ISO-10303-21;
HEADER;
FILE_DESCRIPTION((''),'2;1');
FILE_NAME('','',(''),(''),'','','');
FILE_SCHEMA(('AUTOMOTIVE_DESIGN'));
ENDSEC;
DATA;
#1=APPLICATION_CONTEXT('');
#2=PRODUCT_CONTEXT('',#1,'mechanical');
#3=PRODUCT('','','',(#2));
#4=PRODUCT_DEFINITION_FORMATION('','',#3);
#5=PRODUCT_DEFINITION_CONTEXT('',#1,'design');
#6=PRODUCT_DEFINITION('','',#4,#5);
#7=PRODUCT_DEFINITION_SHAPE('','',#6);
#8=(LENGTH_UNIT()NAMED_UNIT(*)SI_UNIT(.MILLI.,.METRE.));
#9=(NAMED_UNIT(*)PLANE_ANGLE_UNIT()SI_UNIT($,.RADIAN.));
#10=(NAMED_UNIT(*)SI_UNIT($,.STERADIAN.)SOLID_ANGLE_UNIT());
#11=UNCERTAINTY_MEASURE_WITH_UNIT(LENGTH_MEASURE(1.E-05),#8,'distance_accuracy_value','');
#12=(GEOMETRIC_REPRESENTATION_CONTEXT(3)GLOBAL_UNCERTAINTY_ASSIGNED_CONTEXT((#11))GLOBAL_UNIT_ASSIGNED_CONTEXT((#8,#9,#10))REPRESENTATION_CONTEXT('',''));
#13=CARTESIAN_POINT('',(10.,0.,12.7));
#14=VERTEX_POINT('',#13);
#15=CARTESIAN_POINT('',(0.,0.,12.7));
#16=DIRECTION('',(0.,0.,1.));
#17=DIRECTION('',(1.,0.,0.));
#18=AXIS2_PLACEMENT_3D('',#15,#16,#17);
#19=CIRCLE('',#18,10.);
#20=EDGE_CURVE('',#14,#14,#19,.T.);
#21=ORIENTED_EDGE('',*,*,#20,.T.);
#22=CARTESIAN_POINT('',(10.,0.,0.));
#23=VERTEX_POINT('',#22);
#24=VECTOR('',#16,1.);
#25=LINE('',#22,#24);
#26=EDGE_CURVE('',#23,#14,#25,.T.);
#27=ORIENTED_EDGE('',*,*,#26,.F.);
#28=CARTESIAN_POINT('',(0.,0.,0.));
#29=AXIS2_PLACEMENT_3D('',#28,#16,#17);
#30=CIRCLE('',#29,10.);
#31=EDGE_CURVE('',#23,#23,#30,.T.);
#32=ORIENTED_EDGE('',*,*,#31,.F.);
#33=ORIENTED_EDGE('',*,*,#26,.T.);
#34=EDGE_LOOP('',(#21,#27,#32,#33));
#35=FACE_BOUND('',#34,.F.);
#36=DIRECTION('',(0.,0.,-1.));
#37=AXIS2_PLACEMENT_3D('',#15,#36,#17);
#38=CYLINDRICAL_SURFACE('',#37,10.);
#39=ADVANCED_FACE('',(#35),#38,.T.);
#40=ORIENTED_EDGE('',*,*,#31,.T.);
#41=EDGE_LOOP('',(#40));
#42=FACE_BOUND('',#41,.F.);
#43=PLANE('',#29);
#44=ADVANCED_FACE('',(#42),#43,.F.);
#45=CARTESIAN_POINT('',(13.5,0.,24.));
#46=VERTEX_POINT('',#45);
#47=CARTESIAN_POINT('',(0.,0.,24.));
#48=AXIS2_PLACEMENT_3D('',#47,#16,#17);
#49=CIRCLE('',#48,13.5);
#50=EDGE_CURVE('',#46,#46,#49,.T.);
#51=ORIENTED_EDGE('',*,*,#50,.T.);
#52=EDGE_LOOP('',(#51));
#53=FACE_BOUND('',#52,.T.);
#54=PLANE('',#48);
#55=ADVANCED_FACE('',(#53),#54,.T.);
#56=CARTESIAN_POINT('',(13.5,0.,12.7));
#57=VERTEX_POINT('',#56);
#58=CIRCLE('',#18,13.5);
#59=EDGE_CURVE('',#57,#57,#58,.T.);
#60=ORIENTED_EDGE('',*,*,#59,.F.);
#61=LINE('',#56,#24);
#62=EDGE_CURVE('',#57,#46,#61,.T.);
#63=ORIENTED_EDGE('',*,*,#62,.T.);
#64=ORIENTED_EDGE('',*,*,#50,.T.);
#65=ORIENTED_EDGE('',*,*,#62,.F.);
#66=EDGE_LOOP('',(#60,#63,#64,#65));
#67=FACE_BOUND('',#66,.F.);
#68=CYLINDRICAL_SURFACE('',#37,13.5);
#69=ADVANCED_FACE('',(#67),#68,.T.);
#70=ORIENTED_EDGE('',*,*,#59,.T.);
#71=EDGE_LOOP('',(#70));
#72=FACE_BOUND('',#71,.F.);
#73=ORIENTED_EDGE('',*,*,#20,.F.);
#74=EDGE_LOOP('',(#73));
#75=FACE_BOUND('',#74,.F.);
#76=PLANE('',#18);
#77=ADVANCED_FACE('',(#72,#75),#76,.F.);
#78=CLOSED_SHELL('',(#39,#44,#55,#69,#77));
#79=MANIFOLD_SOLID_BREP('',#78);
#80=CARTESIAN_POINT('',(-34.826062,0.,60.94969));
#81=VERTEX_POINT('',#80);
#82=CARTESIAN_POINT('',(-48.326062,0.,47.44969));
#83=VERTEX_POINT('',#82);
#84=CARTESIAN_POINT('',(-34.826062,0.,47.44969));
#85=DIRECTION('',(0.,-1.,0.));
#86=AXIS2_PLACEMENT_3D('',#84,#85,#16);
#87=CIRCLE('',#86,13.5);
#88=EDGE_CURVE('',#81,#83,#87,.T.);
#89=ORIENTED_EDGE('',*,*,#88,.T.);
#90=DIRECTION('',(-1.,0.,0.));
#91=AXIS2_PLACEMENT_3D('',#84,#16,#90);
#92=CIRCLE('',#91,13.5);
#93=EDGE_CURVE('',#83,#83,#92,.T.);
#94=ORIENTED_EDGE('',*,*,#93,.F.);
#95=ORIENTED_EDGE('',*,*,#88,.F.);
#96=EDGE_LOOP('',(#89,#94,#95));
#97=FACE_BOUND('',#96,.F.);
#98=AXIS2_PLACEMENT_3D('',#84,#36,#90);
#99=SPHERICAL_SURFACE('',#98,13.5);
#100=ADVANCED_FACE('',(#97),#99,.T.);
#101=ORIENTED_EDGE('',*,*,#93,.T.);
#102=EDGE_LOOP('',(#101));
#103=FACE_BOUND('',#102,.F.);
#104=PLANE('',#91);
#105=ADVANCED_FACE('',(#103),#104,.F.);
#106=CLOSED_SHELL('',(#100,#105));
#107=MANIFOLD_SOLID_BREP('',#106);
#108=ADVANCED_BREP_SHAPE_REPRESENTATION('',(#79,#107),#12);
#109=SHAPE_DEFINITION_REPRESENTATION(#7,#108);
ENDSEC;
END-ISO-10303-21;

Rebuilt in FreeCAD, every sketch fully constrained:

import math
import FreeCAD as App
import Part
import Sketcher

doc = App.newDocument("Part")
body = doc.addObject("PartDesign::Body", "Body")

# Sketch on XY plane
sketch1 = doc.addObject("Sketcher::SketchObject", "Sketch")
body.addObject(sketch1)
sketch1.AttachmentSupport = (doc.XY_Plane, [""])
sketch1.MapMode = "FlatFace"
sketch1.addGeometry(Part.Circle(App.Vector(0, 0, 0), App.Vector(0, 0, 1), 10), False)
sketch1.addConstraint(Sketcher.Constraint("Coincident", 0, 3, -1, 1))
sketch1.addConstraint(Sketcher.Constraint("Diameter", 0, 20.0))
pad1 = doc.addObject("PartDesign::Pad", "Pad")
body.addObject(pad1)
pad1.Profile = sketch1
pad1.Length = 12.7

# Sketch on XY plane
sketch2 = doc.addObject("Sketcher::SketchObject", "Sketch001")
body.addObject(sketch2)
sketch2.AttachmentSupport = (doc.XY_Plane, [""])
sketch2.MapMode = "FlatFace"
sketch2.AttachmentOffset = App.Placement(App.Vector(0, 0, 12.7), App.Rotation())
sketch2.addGeometry(Part.Circle(App.Vector(0, 0, 0), App.Vector(0, 0, 1), 10), False)
sketch2.addConstraint(Sketcher.Constraint("Coincident", 0, 3, -1, 1))
sketch2.addConstraint(Sketcher.Constraint("Diameter", 0, 20.0))
pad2 = doc.addObject("PartDesign::Pad", "Pad001")
body.addObject(pad2)
pad2.Profile = sketch2
pad2.Length = 11.3

# Sketch on XY plane
sketch3 = doc.addObject("Sketcher::SketchObject", "Sketch002")
body.addObject(sketch3)
sketch3.AttachmentSupport = (doc.XY_Plane, [""])
sketch3.MapMode = "FlatFace"
sketch3.AttachmentOffset = App.Placement(App.Vector(0, 0, 12.7), App.Rotation())
sketch3.addGeometry(Part.Circle(App.Vector(0, 0, 0), App.Vector(0, 0, 1), 14), False)
sketch3.addGeometry(Part.Circle(App.Vector(0, 0, 0), App.Vector(0, 0, 1), 10), False)
sketch3.addConstraint(Sketcher.Constraint("Coincident", 0, 3, -1, 1))
sketch3.addConstraint(Sketcher.Constraint("Coincident", 1, 3, -1, 1))
sketch3.addConstraint(Sketcher.Constraint("Diameter", 0, 27.0))
sketch3.addConstraint(Sketcher.Constraint("Diameter", 1, 20.0))
pad3 = doc.addObject("PartDesign::Pad", "Pad002")
body.addObject(pad3)
pad3.Profile = sketch3
pad3.Type = "UpToLast"
body2 = doc.addObject("PartDesign::Body", "Body001")

# Sketch on XZ plane
sketch4 = doc.addObject("Sketcher::SketchObject", "Sketch003")
body2.addObject(sketch4)
sketch4.AttachmentSupport = (doc.getObject("XZ_Plane001"), [""])
sketch4.MapMode = "FlatFace"
sketch4.addGeometry(Part.LineSegment(App.Vector(-48, 47, 0), App.Vector(-35, 47, 0)), False)
sketch4.addGeometry(Part.LineSegment(App.Vector(-35, 47, 0), App.Vector(-35, 61, 0)), False)
sketch4.addGeometry(Part.ArcOfCircle(Part.Circle(App.Vector(-35, 47, 0), App.Vector(0, 0, 1), 14), math.radians(90), math.radians(180)), False)
sketch4.addGeometry(Part.LineSegment(App.Vector(-35, 47, 0), App.Vector(-35, 61, 0)), True)  # axis
sketch4.addConstraint(Sketcher.Constraint("Coincident", 0, 2, 1, 1))
sketch4.addConstraint(Sketcher.Constraint("Coincident", 1, 2, 2, 1))
sketch4.addConstraint(Sketcher.Constraint("Coincident", 2, 2, 0, 1))
sketch4.addConstraint(Sketcher.Constraint("Horizontal", 0))
sketch4.addConstraint(Sketcher.Constraint("Vertical", 1))
sketch4.addConstraint(Sketcher.Constraint("Vertical", 3))
sketch4.addConstraint(Sketcher.Constraint("Coincident", 0, 2, 2, 3))
sketch4.addConstraint(Sketcher.Constraint("Coincident", 3, 1, 2, 3))
sketch4.addConstraint(Sketcher.Constraint("Equal", 1, 3))
sketch4.addConstraint(Sketcher.Constraint("Radius", 2, 13.5))
sketch4.addConstraint(Sketcher.Constraint("DistanceY", -1, 1, 2, 3, 47.44969))
sketch4.addConstraint(Sketcher.Constraint("DistanceX", 2, 3, -1, 1, 34.826062))
revolution = doc.addObject("PartDesign::Revolution", "Revolution")
body2.addObject(revolution)
revolution.Profile = sketch4
revolution.ReferenceAxis = (sketch4, ["Axis0"])
revolution.Angle = 360

doc.recompute()
